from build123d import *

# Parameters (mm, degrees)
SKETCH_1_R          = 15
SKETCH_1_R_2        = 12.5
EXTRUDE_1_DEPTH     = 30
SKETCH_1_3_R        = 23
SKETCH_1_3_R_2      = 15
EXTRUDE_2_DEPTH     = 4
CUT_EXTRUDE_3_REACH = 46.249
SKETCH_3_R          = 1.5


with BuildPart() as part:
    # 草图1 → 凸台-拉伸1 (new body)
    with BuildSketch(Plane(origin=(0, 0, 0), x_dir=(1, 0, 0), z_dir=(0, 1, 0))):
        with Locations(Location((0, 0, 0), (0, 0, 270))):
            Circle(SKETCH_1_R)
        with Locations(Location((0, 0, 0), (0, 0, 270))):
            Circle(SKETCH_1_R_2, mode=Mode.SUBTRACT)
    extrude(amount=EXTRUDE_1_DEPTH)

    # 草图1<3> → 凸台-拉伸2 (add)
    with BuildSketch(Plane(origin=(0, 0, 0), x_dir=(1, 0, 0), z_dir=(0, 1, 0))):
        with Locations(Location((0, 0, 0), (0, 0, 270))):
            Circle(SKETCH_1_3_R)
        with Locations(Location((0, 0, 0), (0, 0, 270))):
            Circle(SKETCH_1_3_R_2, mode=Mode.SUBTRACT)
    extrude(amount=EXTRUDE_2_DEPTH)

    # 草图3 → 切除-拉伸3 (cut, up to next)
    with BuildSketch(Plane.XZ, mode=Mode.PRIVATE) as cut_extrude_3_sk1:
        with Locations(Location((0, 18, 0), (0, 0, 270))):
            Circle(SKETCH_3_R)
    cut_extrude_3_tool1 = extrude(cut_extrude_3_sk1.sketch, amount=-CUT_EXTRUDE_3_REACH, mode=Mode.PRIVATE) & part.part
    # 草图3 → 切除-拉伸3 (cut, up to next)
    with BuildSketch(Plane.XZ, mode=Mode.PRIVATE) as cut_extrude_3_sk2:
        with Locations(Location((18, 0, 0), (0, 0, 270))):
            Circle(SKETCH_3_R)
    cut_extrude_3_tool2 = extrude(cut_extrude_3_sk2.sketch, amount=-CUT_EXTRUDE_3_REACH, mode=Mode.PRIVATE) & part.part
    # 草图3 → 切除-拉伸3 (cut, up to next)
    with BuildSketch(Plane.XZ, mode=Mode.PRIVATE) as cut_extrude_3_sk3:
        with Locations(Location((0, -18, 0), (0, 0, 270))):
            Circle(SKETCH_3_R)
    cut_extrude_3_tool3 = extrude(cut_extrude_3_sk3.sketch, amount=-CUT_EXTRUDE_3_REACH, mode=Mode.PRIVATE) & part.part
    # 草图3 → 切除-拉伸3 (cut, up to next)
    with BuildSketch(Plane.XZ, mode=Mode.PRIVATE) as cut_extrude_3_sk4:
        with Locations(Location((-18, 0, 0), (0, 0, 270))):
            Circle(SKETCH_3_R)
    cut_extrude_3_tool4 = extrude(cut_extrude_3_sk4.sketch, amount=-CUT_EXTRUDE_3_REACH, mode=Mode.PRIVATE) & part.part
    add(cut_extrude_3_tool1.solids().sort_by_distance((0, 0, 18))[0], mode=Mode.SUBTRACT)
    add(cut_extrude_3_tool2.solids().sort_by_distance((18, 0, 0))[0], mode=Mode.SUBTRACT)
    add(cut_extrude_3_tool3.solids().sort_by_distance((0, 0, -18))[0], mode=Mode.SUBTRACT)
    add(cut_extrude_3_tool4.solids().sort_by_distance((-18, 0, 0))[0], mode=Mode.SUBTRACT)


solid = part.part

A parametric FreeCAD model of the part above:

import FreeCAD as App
import Part
import Sketcher

doc = App.newDocument("Part")
body = doc.addObject("PartDesign::Body", "Body")

# Sketch on XZ plane
sketch1 = body.newObject("Sketcher::SketchObject", "Sketch")
sketch1.AttachmentSupport = (doc.getObject("XZ_Plane"), [""])
sketch1.MapMode = "FlatFace"
sketch1.addGeometry(Part.Circle(App.Vector(0, 0, 0), App.Vector(0, 0, 1), 15), False)
sketch1.addGeometry(Part.Circle(App.Vector(0, 0, 0), App.Vector(0, 0, 1), 12.5), False)
sketch1.addConstraint(Sketcher.Constraint("Coincident", 0, 3, -1, 1))
sketch1.addConstraint(Sketcher.Constraint("Coincident", 1, 3, -1, 1))
sketch1.addConstraint(Sketcher.Constraint("Diameter", 0, 30.0))
sketch1.addConstraint(Sketcher.Constraint("Diameter", 1, 25.0))
pad1 = body.newObject("PartDesign::Pad", "Pad")
pad1.Profile = sketch1
pad1.Length = 30
pad1.Reversed = True

# Sketch on XZ plane
sketch2 = body.newObject("Sketcher::SketchObject", "Sketch001")
sketch2.AttachmentSupport = (doc.getObject("XZ_Plane"), [""])
sketch2.MapMode = "FlatFace"
sketch2.addGeometry(Part.Circle(App.Vector(0, 0, 0), App.Vector(0, 0, 1), 23), False)
sketch2.addGeometry(Part.Circle(App.Vector(0, 0, 0), App.Vector(0, 0, 1), 15), False)
sketch2.addConstraint(Sketcher.Constraint("Coincident", 0, 3, -1, 1))
sketch2.addConstraint(Sketcher.Constraint("Coincident", 1, 3, -1, 1))
sketch2.addConstraint(Sketcher.Constraint("Diameter", 0, 46.0))
sketch2.addConstraint(Sketcher.Constraint("Diameter", 1, 30.0))
pad2 = body.newObject("PartDesign::Pad", "Pad001")
pad2.Profile = sketch2
pad2.Length = 4
pad2.Reversed = True

# Sketch on XZ plane
sketch3 = body.newObject("Sketcher::SketchObject", "Sketch002")
sketch3.AttachmentSupport = (doc.getObject("XZ_Plane"), [""])
sketch3.MapMode = "FlatFace"
sketch3.addGeometry(Part.Circle(App.Vector(0, 18, 0), App.Vector(0, 0, 1), 1.5), False)
sketch3.addConstraint(Sketcher.Constraint("PointOnObject", 0, 3, -2))
sketch3.addConstraint(Sketcher.Constraint("Diameter", 0, 3.0))
sketch3.addConstraint(Sketcher.Constraint("DistanceY", -1, 1, 0, 3, 18.0))
pocket1 = body.newObject("PartDesign::Pocket", "Pocket")
pocket1.Profile = sketch3
pocket1.Type = "UpToFirst"

# Sketch on XZ plane
sketch4 = body.newObject("Sketcher::SketchObject", "Sketch003")
sketch4.AttachmentSupport = (doc.getObject("XZ_Plane"), [""])
sketch4.MapMode = "FlatFace"
sketch4.addGeometry(Part.Circle(App.Vector(18, 0, 0), App.Vector(0, 0, 1), 1.5), False)
sketch4.addConstraint(Sketcher.Constraint("PointOnObject", 0, 3, -1))
sketch4.addConstraint(Sketcher.Constraint("Diameter", 0, 3.0))
sketch4.addConstraint(Sketcher.Constraint("DistanceX", -1, 1, 0, 3, 18.0))
pocket2 = body.newObject("PartDesign::Pocket", "Pocket001")
pocket2.Profile = sketch4
pocket2.Type = "UpToFirst"

# Sketch on XZ plane
sketch5 = body.newObject("Sketcher::SketchObject", "Sketch004")
sketch5.AttachmentSupport = (doc.getObject("XZ_Plane"), [""])
sketch5.MapMode = "FlatFace"
sketch5.addGeometry(Part.Circle(App.Vector(0, -18, 0), App.Vector(0, 0, 1), 1.5), False)
sketch5.addConstraint(Sketcher.Constraint("PointOnObject", 0, 3, -2))
sketch5.addConstraint(Sketcher.Constraint("Diameter", 0, 3.0))
sketch5.addConstraint(Sketcher.Constraint("DistanceY", 0, 3, -1, 1, 18.0))
pocket3 = body.newObject("PartDesign::Pocket", "Pocket002")
pocket3.Profile = sketch5
pocket3.Type = "UpToFirst"

# Sketch on XZ plane
sketch6 = body.newObject("Sketcher::SketchObject", "Sketch005")
sketch6.AttachmentSupport = (doc.getObject("XZ_Plane"), [""])
sketch6.MapMode = "FlatFace"
sketch6.addGeometry(Part.Circle(App.Vector(-18, 0, 0), App.Vector(0, 0, 1), 1.5), False)
sketch6.addConstraint(Sketcher.Constraint("PointOnObject", 0, 3, -1))
sketch6.addConstraint(Sketcher.Constraint("Diameter", 0, 3.0))
sketch6.addConstraint(Sketcher.Constraint("DistanceX", 0, 3, -1, 1, 18.0))
pocket4 = body.newObject("PartDesign::Pocket", "Pocket003")
pocket4.Profile = sketch6
pocket4.Type = "UpToFirst"

doc.recompute()
